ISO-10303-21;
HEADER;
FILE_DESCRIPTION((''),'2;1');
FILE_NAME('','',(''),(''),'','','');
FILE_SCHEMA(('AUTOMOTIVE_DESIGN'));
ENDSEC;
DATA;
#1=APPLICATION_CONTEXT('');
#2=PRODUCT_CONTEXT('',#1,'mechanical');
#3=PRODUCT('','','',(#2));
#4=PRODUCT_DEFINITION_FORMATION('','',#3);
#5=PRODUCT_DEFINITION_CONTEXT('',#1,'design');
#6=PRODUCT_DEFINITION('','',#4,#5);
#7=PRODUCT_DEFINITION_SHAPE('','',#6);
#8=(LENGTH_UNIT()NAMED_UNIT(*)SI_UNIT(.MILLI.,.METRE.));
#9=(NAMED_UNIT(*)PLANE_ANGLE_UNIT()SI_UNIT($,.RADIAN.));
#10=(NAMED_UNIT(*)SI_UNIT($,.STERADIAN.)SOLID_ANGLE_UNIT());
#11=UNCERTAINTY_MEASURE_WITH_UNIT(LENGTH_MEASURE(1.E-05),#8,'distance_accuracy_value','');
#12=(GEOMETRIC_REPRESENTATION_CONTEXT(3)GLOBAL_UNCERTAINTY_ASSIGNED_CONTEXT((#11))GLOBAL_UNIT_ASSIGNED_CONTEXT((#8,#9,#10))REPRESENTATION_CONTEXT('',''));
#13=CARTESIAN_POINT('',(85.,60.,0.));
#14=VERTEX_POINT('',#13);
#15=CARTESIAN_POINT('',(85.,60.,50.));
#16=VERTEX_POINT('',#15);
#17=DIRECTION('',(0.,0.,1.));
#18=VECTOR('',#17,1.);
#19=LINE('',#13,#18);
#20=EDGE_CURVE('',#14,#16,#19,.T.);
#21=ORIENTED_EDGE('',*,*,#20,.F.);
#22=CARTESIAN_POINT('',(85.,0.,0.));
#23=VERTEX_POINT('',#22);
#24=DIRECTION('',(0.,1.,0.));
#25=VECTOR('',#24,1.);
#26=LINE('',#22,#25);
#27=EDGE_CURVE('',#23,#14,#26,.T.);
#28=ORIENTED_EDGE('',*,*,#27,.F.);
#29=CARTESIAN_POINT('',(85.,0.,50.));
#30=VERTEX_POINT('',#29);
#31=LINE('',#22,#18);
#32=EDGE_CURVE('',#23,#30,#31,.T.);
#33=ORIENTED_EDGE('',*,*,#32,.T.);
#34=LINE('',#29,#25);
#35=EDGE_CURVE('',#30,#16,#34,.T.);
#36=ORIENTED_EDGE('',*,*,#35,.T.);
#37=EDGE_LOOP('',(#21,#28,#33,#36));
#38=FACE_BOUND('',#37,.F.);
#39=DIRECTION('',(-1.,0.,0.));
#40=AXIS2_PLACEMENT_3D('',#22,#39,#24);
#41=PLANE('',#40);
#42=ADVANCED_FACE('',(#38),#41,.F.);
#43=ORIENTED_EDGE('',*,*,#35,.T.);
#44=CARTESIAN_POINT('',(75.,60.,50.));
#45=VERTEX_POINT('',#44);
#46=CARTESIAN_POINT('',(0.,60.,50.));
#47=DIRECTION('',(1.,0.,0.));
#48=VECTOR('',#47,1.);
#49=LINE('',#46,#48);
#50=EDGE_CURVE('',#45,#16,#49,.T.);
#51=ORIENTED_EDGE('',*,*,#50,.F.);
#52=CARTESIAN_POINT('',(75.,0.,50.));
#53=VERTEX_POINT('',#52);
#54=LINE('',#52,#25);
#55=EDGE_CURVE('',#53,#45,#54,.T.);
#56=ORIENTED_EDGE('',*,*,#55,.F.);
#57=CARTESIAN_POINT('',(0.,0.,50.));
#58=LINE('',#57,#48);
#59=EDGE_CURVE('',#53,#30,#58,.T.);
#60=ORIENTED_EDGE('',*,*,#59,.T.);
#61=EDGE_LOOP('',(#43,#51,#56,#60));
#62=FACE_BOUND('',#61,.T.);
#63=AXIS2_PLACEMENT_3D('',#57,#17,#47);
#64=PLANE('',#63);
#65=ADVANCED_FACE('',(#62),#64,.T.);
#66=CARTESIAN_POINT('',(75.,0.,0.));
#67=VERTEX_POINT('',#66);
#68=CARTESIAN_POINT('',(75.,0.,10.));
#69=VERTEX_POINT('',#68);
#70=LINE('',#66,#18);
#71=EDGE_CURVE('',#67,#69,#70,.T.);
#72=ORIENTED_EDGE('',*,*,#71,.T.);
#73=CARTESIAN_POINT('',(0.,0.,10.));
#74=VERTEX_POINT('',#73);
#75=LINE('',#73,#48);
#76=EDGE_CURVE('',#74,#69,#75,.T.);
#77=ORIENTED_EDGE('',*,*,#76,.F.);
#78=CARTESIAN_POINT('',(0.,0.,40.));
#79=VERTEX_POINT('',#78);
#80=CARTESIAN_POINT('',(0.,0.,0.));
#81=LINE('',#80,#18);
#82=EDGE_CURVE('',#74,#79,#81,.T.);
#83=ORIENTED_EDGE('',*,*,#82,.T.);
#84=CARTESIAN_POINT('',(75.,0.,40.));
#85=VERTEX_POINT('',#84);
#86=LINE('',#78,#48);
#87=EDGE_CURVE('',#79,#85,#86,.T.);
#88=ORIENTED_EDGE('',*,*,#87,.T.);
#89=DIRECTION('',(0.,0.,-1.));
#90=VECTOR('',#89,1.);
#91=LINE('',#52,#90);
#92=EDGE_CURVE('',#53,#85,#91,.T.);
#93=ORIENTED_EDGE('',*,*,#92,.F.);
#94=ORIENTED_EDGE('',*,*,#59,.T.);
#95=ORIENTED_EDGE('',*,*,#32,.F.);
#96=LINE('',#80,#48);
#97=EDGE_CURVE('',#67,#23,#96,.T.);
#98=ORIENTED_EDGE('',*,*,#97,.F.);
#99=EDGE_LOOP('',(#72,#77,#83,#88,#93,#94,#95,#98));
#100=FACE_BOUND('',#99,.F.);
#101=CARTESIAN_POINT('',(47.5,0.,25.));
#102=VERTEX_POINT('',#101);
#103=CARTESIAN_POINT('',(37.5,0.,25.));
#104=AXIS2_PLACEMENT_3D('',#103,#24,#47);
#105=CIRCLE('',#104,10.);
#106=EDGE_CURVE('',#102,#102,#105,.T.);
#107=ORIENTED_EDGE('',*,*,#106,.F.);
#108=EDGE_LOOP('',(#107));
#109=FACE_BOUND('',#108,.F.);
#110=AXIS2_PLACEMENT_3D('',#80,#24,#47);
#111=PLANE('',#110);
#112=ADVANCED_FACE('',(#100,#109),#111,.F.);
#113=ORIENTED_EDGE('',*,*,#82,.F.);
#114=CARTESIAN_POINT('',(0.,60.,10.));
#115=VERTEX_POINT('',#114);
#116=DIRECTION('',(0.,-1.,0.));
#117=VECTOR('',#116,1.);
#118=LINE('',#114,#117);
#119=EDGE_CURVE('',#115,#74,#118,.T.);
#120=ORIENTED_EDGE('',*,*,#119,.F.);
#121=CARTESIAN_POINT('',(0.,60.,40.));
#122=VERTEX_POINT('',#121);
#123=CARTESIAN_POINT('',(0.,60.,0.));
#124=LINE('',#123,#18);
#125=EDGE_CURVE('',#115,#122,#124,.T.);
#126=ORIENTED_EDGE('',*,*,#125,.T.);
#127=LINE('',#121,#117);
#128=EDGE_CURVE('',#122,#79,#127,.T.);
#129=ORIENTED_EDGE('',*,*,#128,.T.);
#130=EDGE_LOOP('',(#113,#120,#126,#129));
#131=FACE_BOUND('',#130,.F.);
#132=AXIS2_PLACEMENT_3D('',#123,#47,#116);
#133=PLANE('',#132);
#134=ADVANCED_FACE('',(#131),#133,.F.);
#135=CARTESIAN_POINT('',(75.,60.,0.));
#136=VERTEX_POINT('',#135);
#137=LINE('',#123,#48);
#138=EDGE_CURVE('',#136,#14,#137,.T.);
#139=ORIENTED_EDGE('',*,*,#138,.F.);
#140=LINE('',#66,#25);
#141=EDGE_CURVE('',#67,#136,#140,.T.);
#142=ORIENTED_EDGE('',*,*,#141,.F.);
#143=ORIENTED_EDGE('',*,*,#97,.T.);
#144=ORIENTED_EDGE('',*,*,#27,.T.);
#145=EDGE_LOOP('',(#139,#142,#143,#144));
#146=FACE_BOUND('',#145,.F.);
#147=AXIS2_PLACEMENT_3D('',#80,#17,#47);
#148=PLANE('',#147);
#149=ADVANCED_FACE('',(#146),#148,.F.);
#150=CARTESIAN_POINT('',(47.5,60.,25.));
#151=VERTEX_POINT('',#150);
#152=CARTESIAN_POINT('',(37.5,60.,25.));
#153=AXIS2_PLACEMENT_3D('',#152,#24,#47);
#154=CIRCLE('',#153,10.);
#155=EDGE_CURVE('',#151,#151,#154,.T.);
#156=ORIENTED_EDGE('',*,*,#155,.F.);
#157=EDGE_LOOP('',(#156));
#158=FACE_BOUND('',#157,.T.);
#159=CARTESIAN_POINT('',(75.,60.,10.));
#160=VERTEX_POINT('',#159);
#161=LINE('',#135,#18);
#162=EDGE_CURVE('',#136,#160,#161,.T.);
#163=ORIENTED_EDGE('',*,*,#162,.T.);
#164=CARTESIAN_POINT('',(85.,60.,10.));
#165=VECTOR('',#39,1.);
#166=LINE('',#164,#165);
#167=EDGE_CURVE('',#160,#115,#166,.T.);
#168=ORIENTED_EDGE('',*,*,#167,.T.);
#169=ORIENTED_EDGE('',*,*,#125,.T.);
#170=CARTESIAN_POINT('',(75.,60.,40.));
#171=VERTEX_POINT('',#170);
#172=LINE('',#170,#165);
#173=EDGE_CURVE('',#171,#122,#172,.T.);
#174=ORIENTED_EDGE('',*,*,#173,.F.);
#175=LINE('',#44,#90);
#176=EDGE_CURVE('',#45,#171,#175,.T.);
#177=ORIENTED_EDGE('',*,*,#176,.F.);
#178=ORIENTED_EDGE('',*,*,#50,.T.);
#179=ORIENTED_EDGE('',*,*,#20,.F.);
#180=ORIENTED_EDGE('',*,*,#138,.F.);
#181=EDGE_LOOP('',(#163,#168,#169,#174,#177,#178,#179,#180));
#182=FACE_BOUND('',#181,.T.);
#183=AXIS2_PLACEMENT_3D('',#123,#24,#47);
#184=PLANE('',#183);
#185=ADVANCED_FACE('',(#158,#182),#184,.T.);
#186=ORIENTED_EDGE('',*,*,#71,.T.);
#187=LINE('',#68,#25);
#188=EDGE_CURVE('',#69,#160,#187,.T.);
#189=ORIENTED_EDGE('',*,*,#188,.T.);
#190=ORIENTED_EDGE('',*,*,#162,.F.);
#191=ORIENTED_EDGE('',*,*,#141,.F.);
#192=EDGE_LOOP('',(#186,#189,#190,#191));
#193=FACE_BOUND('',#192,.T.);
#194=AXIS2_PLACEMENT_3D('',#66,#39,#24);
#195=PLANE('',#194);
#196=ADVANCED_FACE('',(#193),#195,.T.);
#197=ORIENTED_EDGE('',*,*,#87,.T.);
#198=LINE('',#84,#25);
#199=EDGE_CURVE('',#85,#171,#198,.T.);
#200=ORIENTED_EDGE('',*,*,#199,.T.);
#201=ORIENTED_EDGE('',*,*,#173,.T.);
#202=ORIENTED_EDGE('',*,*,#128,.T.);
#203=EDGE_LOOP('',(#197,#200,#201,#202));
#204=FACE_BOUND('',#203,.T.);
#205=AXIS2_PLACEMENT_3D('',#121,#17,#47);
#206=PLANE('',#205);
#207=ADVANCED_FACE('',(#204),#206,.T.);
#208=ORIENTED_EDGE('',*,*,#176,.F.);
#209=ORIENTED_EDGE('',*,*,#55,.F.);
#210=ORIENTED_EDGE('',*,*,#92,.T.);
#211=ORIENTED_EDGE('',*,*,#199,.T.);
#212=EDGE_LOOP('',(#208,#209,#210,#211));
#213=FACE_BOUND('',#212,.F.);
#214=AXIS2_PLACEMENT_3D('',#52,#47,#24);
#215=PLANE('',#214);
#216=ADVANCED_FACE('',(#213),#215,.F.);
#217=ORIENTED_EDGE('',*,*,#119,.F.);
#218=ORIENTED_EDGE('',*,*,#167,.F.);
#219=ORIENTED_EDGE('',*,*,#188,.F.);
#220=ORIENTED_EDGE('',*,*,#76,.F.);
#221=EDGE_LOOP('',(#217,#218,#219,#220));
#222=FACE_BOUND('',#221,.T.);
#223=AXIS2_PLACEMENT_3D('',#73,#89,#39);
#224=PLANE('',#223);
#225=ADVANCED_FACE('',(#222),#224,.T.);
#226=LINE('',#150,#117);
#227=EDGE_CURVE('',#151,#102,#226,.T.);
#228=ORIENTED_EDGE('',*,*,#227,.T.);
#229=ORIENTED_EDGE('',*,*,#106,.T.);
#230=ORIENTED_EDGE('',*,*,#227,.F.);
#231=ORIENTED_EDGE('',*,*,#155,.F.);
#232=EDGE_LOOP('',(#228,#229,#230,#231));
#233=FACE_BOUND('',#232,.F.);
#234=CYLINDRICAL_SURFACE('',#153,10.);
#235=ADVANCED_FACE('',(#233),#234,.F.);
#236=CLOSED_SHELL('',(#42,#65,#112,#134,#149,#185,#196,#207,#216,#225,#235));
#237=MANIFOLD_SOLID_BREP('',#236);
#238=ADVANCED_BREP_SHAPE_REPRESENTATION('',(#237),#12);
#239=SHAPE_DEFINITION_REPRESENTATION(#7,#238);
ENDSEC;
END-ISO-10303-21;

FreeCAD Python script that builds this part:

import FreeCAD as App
import Part
import Sketcher
from FreeCAD import Vector

doc = App.newDocument("Part")
body = doc.addObject("PartDesign::Body", "Body")

# Sketch on XY plane
sketch1 = body.newObject("Sketcher::SketchObject", "Sketch")
sketch1.AttachmentSupport = (doc.getObject("XY_Plane"), [""])
sketch1.MapMode = "FlatFace"
sketch1.addGeometry([
    Part.LineSegment(Vector(0, 60, 0), Vector(0, 0, 0)),
    Part.LineSegment(Vector(0, 0, 0), Vector(85, 0, 0)),
    Part.LineSegment(Vector(85, 0, 0), Vector(85, 60, 0)),
    Part.LineSegment(Vector(85, 60, 0), Vector(0, 60, 0)),
], False)
sketch1.addConstraint([
    Sketcher.Constraint("Coincident", 0, 2, 1, 1),
    Sketcher.Constraint("Coincident", 1, 2, 2, 1),
    Sketcher.Constraint("Coincident", 2, 2, 3, 1),
    Sketcher.Constraint("Coincident", 3, 2, 0, 1),
    Sketcher.Constraint("Vertical", 0),
    Sketcher.Constraint("Horizontal", 1),
    Sketcher.Constraint("Vertical", 2),
    Sketcher.Constraint("Horizontal", 3),
    Sketcher.Constraint("Coincident", 0, 2, -1, 1),
    Sketcher.Constraint("DistanceX", 1, 1, 1, 2, 85.0),
    Sketcher.Constraint("DistanceY", 0, 2, 0, 1, 60.0),
])
pad1 = body.newObject("PartDesign::Pad", "Pad")
pad1.Profile = sketch1
pad1.Length = 50

# Sketch on XY plane
sketch2 = body.newObject("Sketcher::SketchObject", "Sketch001")
sketch2.AttachmentSupport = (doc.getObject("XY_Plane"), [""])
sketch2.MapMode = "FlatFace"
sketch2.AttachmentOffset = App.Placement(Vector(0, 0, 50), App.Rotation())
sketch2.addGeometry([
    Part.LineSegment(Vector(0, 60, 0), Vector(0, 0, 0)),
    Part.LineSegment(Vector(0, 0, 0), Vector(75, 0, 0)),
    Part.LineSegment(Vector(75, 0, 0), Vector(75, 60, 0)),
    Part.LineSegment(Vector(75, 60, 0), Vector(0, 60, 0)),
], False)
sketch2.addConstraint([
    Sketcher.Constraint("Coincident", 0, 2, 1, 1),
    Sketcher.Constraint("Coincident", 1, 2, 2, 1),
    Sketcher.Constraint("Coincident", 2, 2, 3, 1),
    Sketcher.Constraint("Coincident", 3, 2, 0, 1),
    Sketcher.Constraint("Vertical", 0),
    Sketcher.Constraint("Horizontal", 1),
    Sketcher.Constraint("Vertical", 2),
    Sketcher.Constraint("Horizontal", 3),
    Sketcher.Constraint("Coincident", 0, 2, -1, 1),
    Sketcher.Constraint("DistanceX", 1, 1, 1, 2, 75.0),
    Sketcher.Constraint("DistanceY", 0, 2, 0, 1, 60.0),
])
pocket1 = body.newObject("PartDesign::Pocket", "Pocket")
pocket1.Profile = sketch2
pocket1.Length = 10

# Sketch on XY plane
sketch3 = body.newObject("Sketcher::SketchObject", "Sketch002")
sketch3.AttachmentSupport = (doc.getObject("XY_Plane"), [""])
sketch3.MapMode = "FlatFace"
sketch3.addGeometry([
    Part.LineSegment(Vector(75, 0, 0), Vector(0, 0, 0)),
    Part.LineSegment(Vector(0, 0, 0), Vector(0, 60, 0)),
    Part.LineSegment(Vector(0, 60, 0), Vector(75, 60, 0)),
    Part.LineSegment(Vector(75, 60, 0), Vector(75, 0, 0)),
], False)
sketch3.addConstraint([
    Sketcher.Constraint("Coincident", 0, 2, 1, 1),
    Sketcher.Constraint("Coincident", 1, 2, 2, 1),
    Sketcher.Constraint("Coincident", 2, 2, 3, 1),
    Sketcher.Constraint("Coincident", 3, 2, 0, 1),
    Sketcher.Constraint("Horizontal", 0),
    Sketcher.Constraint("Vertical", 1),
    Sketcher.Constraint("Horizontal", 2),
    Sketcher.Constraint("Vertical", 3),
    Sketcher.Constraint("Coincident", 0, 2, -1, 1),
    Sketcher.Constraint("DistanceX", 0, 2, 0, 1, 75.0),
    Sketcher.Constraint("DistanceY", 1, 1, 1, 2, 60.0),
])
pocket2 = body.newObject("PartDesign::Pocket", "Pocket001")
pocket2.Profile = sketch3
pocket2.Length = 10
pocket2.Reversed = True

# Sketch on XZ plane
sketch4 = body.newObject("Sketcher::SketchObject", "Sketch003")
sketch4.AttachmentSupport = (doc.getObject("XZ_Plane"), [""])
sketch4.MapMode = "FlatFace"
sketch4.AttachmentOffset = App.Placement(Vector(0, 0, -60), App.Rotation())
sketch4.addGeometry(Part.Circle(Vector(38, 25, 0), Vector(0, 0, 1), 10), False)
sketch4.addConstraint([
    Sketcher.Constraint("Diameter", 0, 20.0),
    Sketcher.Constraint("DistanceY", -1, 1, 0, 3, 25.0),
    Sketcher.Constraint("DistanceX", -1, 1, 0, 3, 37.5),
])
pocket3 = body.newObject("PartDesign::Pocket", "Pocket002")
pocket3.Profile = sketch4
pocket3.Type = "ThroughAll"
pocket3.Reversed = True

doc.recompute()
